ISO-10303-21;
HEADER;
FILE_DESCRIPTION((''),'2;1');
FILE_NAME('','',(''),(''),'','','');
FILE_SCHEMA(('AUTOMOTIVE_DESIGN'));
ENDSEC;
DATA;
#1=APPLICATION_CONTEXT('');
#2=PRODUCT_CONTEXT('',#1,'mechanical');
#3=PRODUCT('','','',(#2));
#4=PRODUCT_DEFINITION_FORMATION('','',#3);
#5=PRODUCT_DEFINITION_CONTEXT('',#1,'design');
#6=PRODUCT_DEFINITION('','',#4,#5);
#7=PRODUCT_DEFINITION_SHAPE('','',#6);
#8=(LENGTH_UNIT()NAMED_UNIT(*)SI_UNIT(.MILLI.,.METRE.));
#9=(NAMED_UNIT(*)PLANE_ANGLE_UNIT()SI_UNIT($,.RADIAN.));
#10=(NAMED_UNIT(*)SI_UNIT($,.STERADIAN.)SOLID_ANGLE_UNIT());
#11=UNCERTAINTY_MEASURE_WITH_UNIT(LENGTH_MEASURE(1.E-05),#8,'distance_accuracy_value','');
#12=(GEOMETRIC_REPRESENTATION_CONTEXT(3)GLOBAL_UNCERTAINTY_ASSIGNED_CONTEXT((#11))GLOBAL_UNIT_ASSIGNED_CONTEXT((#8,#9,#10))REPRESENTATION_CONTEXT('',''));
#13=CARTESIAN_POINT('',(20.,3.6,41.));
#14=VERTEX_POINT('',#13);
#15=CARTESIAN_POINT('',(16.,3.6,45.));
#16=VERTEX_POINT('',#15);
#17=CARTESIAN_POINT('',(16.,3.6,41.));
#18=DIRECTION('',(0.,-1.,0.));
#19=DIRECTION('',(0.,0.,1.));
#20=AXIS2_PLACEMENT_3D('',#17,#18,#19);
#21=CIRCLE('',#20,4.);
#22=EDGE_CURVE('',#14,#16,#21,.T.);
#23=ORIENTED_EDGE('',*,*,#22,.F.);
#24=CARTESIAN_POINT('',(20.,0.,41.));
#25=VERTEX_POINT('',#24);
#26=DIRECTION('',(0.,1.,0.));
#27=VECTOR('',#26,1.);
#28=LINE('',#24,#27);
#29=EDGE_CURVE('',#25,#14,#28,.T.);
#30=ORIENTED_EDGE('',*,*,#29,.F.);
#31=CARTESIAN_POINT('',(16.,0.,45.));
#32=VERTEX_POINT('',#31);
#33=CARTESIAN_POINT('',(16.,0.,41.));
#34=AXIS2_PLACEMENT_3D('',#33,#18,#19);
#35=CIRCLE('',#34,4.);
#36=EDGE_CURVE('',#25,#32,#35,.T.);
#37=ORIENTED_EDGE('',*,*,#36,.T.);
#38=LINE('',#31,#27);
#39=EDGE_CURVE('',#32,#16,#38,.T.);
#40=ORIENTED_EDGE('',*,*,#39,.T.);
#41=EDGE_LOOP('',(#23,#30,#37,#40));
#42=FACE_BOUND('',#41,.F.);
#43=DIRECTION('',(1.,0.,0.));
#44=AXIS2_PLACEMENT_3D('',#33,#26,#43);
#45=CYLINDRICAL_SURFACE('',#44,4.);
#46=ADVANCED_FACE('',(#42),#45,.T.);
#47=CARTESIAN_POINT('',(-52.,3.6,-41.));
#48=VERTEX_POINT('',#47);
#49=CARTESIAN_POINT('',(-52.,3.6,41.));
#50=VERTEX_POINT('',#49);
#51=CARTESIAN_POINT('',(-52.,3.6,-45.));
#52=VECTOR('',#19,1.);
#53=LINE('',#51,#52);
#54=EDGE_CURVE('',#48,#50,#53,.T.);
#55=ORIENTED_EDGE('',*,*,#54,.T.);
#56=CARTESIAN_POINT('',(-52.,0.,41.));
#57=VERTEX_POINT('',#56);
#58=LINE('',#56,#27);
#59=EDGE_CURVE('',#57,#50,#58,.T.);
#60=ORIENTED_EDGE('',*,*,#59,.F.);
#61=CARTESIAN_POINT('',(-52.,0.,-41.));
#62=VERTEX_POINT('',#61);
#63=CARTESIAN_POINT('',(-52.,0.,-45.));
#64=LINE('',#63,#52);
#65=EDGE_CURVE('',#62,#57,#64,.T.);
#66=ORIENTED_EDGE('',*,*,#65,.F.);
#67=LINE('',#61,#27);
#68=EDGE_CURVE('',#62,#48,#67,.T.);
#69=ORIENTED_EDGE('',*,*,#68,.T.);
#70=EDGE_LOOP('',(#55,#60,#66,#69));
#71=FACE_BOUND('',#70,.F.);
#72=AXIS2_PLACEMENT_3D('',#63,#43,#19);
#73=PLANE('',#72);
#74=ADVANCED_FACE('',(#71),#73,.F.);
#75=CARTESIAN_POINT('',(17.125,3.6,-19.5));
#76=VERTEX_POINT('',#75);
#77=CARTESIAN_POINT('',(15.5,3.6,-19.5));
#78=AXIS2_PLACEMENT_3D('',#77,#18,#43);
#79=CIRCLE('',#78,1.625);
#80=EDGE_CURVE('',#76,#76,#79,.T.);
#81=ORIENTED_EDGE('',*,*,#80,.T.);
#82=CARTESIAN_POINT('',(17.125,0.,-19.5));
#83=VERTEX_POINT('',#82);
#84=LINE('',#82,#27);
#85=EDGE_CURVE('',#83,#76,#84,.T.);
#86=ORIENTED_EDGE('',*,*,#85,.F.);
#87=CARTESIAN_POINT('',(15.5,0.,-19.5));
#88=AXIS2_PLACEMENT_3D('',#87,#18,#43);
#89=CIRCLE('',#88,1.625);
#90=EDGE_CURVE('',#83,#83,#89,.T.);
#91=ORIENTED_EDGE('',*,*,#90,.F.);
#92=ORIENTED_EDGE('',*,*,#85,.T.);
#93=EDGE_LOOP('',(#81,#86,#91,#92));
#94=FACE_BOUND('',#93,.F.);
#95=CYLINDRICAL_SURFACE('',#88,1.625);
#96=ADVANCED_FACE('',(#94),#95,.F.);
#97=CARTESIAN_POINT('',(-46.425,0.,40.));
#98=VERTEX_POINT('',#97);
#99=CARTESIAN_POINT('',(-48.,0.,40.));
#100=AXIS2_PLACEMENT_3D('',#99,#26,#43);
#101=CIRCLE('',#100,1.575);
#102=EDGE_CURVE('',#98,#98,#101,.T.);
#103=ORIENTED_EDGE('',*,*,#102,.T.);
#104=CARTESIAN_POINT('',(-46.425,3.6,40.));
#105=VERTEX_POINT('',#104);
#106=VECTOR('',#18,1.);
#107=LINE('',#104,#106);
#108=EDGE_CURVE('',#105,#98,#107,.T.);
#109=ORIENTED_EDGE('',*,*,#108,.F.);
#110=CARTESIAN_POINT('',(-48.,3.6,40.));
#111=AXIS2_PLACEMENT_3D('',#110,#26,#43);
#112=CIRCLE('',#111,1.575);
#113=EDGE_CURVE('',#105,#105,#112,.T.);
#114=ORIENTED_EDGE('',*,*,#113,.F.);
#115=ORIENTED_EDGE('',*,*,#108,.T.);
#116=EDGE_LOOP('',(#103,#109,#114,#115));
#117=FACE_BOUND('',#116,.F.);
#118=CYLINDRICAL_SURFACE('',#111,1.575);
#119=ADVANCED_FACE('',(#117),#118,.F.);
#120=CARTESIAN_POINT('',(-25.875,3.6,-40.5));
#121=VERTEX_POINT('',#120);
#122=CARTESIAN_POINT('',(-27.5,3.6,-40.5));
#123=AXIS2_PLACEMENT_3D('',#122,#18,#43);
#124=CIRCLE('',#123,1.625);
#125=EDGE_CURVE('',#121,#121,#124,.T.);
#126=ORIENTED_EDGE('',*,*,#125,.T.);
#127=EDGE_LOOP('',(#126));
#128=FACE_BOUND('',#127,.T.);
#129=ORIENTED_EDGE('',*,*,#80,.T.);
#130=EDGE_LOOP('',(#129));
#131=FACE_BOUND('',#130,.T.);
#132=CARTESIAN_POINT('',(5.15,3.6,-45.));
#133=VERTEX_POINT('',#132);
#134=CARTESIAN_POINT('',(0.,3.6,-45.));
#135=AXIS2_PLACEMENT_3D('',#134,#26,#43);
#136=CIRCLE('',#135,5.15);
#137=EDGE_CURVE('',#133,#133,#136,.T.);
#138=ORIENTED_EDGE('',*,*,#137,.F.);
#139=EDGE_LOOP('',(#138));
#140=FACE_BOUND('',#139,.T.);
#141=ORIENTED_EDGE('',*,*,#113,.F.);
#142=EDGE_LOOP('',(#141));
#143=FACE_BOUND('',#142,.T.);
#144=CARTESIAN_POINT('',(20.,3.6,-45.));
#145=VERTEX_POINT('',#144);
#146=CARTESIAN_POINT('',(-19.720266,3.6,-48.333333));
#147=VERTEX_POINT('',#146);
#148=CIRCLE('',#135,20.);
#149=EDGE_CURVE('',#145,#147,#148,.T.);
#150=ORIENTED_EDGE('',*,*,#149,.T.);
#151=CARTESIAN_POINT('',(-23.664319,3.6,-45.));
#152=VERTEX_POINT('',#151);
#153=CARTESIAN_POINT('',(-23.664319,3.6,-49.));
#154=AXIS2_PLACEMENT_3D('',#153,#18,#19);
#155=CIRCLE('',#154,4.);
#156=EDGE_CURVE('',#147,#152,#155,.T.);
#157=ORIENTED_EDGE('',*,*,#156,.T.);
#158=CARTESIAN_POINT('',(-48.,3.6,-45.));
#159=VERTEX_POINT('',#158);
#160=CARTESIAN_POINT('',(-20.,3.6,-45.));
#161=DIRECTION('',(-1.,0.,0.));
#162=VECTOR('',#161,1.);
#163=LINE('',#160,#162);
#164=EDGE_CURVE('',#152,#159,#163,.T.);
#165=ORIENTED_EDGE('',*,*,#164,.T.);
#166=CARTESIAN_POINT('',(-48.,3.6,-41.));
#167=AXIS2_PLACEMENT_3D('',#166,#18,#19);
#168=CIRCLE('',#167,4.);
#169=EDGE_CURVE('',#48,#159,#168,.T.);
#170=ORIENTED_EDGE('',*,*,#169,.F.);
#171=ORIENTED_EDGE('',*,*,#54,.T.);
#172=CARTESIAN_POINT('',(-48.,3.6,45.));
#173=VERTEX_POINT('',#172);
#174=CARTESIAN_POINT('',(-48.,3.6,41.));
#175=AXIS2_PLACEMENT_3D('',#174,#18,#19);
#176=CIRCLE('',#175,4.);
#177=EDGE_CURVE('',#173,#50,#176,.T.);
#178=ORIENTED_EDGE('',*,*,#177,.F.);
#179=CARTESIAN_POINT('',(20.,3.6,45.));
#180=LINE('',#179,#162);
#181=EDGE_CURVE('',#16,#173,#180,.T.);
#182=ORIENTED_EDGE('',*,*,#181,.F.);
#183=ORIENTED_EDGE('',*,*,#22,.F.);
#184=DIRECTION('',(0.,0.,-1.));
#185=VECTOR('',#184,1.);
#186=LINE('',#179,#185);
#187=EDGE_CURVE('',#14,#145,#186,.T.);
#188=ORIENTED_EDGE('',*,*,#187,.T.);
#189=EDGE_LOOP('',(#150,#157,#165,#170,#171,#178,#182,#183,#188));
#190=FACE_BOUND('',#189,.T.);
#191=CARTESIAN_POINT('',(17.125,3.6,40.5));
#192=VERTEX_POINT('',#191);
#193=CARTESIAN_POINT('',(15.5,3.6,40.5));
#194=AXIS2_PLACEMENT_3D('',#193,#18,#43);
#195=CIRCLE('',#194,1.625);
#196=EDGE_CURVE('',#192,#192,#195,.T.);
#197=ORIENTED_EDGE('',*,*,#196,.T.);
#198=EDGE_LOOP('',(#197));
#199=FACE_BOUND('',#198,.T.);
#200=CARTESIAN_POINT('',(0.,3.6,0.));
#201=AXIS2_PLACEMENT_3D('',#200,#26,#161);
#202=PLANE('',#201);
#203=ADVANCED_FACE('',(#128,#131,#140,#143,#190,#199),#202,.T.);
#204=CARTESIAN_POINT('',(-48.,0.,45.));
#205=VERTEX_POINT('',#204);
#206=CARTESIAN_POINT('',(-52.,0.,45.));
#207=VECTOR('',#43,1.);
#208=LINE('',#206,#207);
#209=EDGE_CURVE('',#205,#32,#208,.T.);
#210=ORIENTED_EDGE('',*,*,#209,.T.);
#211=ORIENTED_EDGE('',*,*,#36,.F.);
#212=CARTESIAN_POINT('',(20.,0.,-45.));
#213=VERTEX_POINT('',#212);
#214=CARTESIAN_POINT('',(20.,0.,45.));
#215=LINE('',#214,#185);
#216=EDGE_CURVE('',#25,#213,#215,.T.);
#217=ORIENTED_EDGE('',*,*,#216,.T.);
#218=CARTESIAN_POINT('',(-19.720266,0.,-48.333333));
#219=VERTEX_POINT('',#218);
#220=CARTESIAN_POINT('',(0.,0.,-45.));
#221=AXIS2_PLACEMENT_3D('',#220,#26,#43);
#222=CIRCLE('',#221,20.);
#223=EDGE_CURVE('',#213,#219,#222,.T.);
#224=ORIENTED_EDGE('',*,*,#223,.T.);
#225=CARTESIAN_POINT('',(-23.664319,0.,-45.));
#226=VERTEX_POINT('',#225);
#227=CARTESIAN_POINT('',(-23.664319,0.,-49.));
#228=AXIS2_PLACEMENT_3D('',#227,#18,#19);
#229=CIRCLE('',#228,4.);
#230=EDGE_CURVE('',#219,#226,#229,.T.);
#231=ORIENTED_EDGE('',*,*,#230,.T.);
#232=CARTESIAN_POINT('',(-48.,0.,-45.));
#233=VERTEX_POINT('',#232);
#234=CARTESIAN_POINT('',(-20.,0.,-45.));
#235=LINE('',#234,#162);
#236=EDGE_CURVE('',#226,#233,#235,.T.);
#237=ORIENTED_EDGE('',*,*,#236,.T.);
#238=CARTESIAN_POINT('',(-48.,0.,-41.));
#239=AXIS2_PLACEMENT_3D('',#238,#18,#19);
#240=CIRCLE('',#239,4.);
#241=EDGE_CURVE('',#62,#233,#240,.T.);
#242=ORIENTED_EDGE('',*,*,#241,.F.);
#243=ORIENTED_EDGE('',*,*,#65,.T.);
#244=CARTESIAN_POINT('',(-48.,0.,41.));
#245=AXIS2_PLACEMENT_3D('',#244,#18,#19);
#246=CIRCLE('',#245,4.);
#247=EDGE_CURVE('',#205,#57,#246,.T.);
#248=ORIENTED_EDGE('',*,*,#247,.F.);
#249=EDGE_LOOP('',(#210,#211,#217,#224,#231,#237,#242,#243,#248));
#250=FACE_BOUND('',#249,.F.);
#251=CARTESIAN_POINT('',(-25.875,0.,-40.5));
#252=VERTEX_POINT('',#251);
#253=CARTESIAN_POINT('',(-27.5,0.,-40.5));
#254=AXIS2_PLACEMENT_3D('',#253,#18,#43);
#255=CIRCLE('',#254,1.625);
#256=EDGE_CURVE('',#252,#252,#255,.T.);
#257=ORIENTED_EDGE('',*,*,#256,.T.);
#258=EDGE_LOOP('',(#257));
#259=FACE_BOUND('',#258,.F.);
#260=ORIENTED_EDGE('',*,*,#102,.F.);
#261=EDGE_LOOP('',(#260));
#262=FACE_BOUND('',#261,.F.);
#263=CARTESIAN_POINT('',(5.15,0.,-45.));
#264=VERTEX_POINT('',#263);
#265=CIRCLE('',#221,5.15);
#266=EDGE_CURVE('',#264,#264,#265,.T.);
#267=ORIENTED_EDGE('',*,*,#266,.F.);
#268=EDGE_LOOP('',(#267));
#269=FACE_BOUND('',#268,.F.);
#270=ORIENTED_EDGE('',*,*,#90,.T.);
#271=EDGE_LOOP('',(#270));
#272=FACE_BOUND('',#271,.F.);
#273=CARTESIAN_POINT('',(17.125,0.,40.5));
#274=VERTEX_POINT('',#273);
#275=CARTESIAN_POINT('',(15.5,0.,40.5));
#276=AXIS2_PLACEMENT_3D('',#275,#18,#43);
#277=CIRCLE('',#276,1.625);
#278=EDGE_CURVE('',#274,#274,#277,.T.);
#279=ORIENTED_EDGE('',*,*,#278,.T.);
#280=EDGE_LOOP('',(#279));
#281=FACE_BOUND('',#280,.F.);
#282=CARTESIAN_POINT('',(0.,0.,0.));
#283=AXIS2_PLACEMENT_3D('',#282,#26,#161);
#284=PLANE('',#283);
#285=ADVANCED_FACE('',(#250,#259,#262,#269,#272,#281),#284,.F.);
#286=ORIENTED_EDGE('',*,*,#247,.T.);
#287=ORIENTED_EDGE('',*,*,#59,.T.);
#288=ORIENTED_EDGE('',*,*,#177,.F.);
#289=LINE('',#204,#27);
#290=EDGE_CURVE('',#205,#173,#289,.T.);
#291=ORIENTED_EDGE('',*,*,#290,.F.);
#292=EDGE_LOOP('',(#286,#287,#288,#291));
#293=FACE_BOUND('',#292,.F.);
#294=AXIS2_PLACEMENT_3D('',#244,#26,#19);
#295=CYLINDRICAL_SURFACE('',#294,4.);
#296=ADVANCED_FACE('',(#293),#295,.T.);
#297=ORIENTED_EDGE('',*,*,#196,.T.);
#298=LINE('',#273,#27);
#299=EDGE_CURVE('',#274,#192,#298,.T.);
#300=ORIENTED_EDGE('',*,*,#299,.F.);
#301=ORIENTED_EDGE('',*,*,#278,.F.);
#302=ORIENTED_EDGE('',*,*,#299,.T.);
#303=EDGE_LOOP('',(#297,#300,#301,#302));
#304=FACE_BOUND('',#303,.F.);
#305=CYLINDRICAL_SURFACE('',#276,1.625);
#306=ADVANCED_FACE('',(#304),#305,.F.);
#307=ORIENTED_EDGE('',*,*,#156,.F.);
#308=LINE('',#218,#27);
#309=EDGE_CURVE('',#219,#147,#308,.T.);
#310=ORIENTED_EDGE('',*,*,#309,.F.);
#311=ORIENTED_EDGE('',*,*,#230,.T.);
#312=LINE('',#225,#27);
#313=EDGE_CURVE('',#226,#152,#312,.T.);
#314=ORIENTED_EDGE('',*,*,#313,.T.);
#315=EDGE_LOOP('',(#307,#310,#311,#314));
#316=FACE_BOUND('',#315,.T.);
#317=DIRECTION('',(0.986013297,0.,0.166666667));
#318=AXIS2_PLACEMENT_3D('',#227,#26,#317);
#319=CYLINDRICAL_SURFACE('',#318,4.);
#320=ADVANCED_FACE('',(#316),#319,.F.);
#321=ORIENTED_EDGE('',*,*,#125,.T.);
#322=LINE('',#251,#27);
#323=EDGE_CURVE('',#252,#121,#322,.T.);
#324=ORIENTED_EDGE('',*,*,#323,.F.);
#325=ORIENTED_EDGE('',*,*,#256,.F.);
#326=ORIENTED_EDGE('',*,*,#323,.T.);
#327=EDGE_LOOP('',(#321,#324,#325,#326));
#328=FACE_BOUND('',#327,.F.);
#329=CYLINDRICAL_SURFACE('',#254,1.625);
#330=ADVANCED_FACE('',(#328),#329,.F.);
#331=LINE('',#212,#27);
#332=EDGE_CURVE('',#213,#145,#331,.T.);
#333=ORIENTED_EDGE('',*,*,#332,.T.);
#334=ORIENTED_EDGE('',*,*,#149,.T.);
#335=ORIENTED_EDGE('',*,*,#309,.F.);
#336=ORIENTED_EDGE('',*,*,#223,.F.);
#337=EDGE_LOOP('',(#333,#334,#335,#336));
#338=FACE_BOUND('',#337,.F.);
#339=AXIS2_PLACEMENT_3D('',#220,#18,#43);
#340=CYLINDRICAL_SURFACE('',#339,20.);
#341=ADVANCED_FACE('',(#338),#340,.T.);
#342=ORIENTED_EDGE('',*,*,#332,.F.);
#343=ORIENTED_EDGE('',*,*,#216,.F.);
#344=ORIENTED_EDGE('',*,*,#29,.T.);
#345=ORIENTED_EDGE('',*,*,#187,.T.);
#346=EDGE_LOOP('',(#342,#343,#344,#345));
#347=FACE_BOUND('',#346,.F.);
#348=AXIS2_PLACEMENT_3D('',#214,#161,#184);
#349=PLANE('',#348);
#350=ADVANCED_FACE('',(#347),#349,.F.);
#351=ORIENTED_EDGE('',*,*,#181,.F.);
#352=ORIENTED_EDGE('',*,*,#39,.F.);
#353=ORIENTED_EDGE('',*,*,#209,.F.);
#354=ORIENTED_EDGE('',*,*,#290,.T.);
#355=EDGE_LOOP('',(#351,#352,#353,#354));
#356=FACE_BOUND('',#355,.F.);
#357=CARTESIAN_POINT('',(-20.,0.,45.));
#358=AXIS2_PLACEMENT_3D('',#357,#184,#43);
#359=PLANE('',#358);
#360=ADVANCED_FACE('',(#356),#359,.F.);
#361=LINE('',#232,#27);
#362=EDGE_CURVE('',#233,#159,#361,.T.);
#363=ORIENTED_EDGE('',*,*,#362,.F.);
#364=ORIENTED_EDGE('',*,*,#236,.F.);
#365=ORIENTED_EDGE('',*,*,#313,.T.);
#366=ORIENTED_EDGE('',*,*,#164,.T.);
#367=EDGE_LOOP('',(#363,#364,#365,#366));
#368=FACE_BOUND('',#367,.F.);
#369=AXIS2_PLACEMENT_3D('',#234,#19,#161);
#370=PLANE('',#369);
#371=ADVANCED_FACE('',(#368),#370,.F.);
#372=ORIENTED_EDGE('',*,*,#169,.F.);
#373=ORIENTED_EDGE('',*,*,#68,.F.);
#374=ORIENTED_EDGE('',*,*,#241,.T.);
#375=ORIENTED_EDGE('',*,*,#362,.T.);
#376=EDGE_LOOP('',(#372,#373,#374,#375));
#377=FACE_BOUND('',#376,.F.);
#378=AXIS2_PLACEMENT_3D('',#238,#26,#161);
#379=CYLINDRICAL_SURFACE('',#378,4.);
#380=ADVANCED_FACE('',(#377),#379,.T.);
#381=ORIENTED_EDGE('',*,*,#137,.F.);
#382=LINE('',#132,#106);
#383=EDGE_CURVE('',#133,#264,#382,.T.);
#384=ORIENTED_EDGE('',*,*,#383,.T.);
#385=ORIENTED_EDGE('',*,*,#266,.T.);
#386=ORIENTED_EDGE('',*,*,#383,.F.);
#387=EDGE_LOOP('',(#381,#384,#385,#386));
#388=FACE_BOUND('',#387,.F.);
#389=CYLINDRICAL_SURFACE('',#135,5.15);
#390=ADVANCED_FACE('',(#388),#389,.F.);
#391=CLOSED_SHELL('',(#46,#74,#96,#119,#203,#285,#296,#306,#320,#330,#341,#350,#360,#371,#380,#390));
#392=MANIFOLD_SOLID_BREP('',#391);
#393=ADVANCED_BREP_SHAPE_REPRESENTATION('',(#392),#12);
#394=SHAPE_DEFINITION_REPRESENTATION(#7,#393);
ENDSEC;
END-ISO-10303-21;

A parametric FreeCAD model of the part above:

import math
import FreeCAD as App
import Part
import Sketcher
from FreeCAD import Vector


def edges_at(feature, points):
    """Names of the edges that pass closest to the given points."""
    edges = feature.Shape.Edges
    near = lambda p: min(range(len(edges)), key=lambda i: edges[i].distToShape(Part.Vertex(*p))[0])
    return sorted({f"Edge{near(p) + 1}" for p in points})

doc = App.newDocument("Part")
params = doc.addObject("Spreadsheet::Sheet", "Params")
for row, (alias, value) in enumerate([
    ("sketch1_radius", "20 mm"),
    ("sketch1_width", "32 mm"),
    ("sketch1_height", "90 mm"),
    ("pad1_length", "3.6 mm"),
    ("sketch2_diameter", "10.3 mm"),
    ("pocket1_length", "3.6 mm"),
    ("fillet_radius", "4 mm"),
    ("sketch3_diameter", "3.25 mm"),
    ("pocket2_length", "3.8 mm"),
    ("sketch4_diameter", "3.15 mm"),
    ("pocket3_length", "3.8 mm"),
], start=1):
    params.set(f"A{row}", alias)
    params.set(f"B{row}", "=" + value)
    params.setAlias(f"B{row}", alias)

body = doc.addObject("PartDesign::Body", "Body")

# Sketch on XZ plane
sketch1 = body.newObject("Sketcher::SketchObject", "Sketch")
sketch1.AttachmentSupport = (doc.getObject("XZ_Plane"), [""])
sketch1.MapMode = "FlatFace"
sketch1.addGeometry(Part.LineSegment(Vector(20, 45, 0), Vector(20, -45, 0)), False)
sketch1.addGeometry(Part.ArcOfCircle(Part.Circle(Vector(0, -45, 0), Vector(0, 0, 1), 20), math.radians(180), math.radians(360)), False)
sketch1.addGeometry(Part.LineSegment(Vector(-20, -45, 0), Vector(-52, -45, 0)), False)
sketch1.addGeometry(Part.LineSegment(Vector(-52, -45, 0), Vector(-52, 45, 0)), False)
sketch1.addGeometry(Part.LineSegment(Vector(-52, 45, 0), Vector(20, 45, 0)), False)
sketch1.addConstraint(Sketcher.Constraint("Tangent", 0, 2, 1, 2))
sketch1.addConstraint(Sketcher.Constraint("Coincident", 1, 1, 2, 1))
sketch1.addConstraint(Sketcher.Constraint("Coincident", 2, 2, 3, 1))
sketch1.addConstraint(Sketcher.Constraint("Coincident", 3, 2, 4, 1))
sketch1.addConstraint(Sketcher.Constraint("Coincident", 4, 2, 0, 1))
sketch1.addConstraint(Sketcher.Constraint("Vertical", 0))
sketch1.addConstraint(Sketcher.Constraint("Horizontal", 2))
sketch1.addConstraint(Sketcher.Constraint("Vertical", 3))
sketch1.addConstraint(Sketcher.Constraint("Horizontal", 4))
sketch1.addConstraint(Sketcher.Constraint("Symmetric", 1, 1, 4, 2, -1, 1))
sketch1.addConstraint(Sketcher.Constraint("Horizontal", 0, 2, 1, 1))
sketch1.addConstraint(Sketcher.Constraint("Radius", 1, 20.0))
sketch1.addConstraint(Sketcher.Constraint("DistanceX", 2, 2, 2, 1, 32.0))
sketch1.addConstraint(Sketcher.Constraint("DistanceY", 0, 2, 0, 1, 90.0))
sketch1.setExpression("Constraints[11]", "Params.sketch1_radius")
sketch1.setExpression("Constraints[12]", "Params.sketch1_width")
sketch1.setExpression("Constraints[13]", "Params.sketch1_height")
pad1 = body.newObject("PartDesign::Pad", "Pad")
pad1.Profile = sketch1
pad1.setExpression("Length", "Params.pad1_length")
pad1.Reversed = True

# Sketch on XZ plane
sketch2 = body.newObject("Sketcher::SketchObject", "Sketch001")
sketch2.AttachmentSupport = (doc.getObject("XZ_Plane"), [""])
sketch2.MapMode = "FlatFace"
sketch2.AttachmentOffset = App.Placement(Vector(0, 0, -3.6), App.Rotation())
sketch2.addGeometry(Part.Circle(Vector(0, -45, 0), Vector(0, 0, 1), 5), False)
sketch2.addConstraint(Sketcher.Constraint("PointOnObject", 0, 3, -2))
sketch2.addConstraint(Sketcher.Constraint("Diameter", 0, 10.3))
sketch2.addConstraint(Sketcher.Constraint("DistanceY", 0, 3, -1, 1, 45.0))
sketch2.setExpression("Constraints[1]", "Params.sketch2_diameter")
pocket1 = body.newObject("PartDesign::Pocket", "Pocket")
pocket1.Profile = sketch2
pocket1.setExpression("Length", "Params.pocket1_length")
pocket1.Reversed = True
doc.recompute()

fillet = body.newObject("PartDesign::Fillet", "Fillet")
fillet.Base = (pocket1, edges_at(pocket1, [
    (-20, 1.8, -45),
    (-52, 1.8, -45),
    (-52, 1.8, 45),
    (20, 1.8, 45),
]))
fillet.setExpression("Radius", "Params.fillet_radius")

# Sketch on XZ plane
sketch3 = body.newObject("Sketcher::SketchObject", "Sketch002")
sketch3.AttachmentSupport = (doc.getObject("XZ_Plane"), [""])
sketch3.MapMode = "FlatFace"
sketch3.addGeometry(Part.Circle(Vector(15.5, 40.5, 0), Vector(0, 0, 1), 1.6), False)
sketch3.addGeometry(Part.Circle(Vector(15.5, -19.5, 0), Vector(0, 0, 1), 1.6), False)
sketch3.addGeometry(Part.Circle(Vector(-27.5, -40.5, 0), Vector(0, 0, 1), 1.6), False)
sketch3.addConstraint(Sketcher.Constraint("Equal", 0, 1))
sketch3.addConstraint(Sketcher.Constraint("Equal", 1, 2))
sketch3.addConstraint(Sketcher.Constraint("Vertical", 0, 3, 1, 3))
sketch3.addConstraint(Sketcher.Constraint("Diameter", 0, 3.25))
sketch3.addConstraint(Sketcher.Constraint("DistanceY", 1, 3, 0, 3, 60.0))
sketch3.addConstraint(Sketcher.Constraint("DistanceX", 2, 3, 1, 3, 43.0))
sketch3.addConstraint(Sketcher.Constraint("DistanceY", 2, 3, 1, 3, 21.0))
sketch3.addConstraint(Sketcher.Constraint("DistanceX", -1, 1, 0, 3, 15.5))
sketch3.addConstraint(Sketcher.Constraint("DistanceY", -1, 1, 0, 3, 40.5))
sketch3.setExpression("Constraints[3]", "Params.sketch3_diameter")
pocket2 = body.newObject("PartDesign::Pocket", "Pocket001")
pocket2.Profile = sketch3
pocket2.setExpression("Length", "Params.pocket2_length")

# Sketch on XZ plane
sketch4 = body.newObject("Sketcher::SketchObject", "Sketch003")
sketch4.AttachmentSupport = (doc.getObject("XZ_Plane"), [""])
sketch4.MapMode = "FlatFace"
sketch4.AttachmentOffset = App.Placement(Vector(0, 0, -3.6), App.Rotation())
sketch4.addGeometry(Part.Circle(Vector(-48, 40, 0), Vector(0, 0, 1), 1.6), False)
sketch4.addConstraint(Sketcher.Constraint("Diameter", 0, 3.15))
sketch4.addConstraint(Sketcher.Constraint("DistanceX", 0, 3, -1, 1, 48.0))
sketch4.addConstraint(Sketcher.Constraint("DistanceY", -1, 1, 0, 3, 40.0))
sketch4.setExpression("Constraints[0]", "Params.sketch4_diameter")
pocket3 = body.newObject("PartDesign::Pocket", "Pocket002")
pocket3.Profile = sketch4
pocket3.setExpression("Length", "Params.pocket3_length")
pocket3.Reversed = True

doc.recompute()
